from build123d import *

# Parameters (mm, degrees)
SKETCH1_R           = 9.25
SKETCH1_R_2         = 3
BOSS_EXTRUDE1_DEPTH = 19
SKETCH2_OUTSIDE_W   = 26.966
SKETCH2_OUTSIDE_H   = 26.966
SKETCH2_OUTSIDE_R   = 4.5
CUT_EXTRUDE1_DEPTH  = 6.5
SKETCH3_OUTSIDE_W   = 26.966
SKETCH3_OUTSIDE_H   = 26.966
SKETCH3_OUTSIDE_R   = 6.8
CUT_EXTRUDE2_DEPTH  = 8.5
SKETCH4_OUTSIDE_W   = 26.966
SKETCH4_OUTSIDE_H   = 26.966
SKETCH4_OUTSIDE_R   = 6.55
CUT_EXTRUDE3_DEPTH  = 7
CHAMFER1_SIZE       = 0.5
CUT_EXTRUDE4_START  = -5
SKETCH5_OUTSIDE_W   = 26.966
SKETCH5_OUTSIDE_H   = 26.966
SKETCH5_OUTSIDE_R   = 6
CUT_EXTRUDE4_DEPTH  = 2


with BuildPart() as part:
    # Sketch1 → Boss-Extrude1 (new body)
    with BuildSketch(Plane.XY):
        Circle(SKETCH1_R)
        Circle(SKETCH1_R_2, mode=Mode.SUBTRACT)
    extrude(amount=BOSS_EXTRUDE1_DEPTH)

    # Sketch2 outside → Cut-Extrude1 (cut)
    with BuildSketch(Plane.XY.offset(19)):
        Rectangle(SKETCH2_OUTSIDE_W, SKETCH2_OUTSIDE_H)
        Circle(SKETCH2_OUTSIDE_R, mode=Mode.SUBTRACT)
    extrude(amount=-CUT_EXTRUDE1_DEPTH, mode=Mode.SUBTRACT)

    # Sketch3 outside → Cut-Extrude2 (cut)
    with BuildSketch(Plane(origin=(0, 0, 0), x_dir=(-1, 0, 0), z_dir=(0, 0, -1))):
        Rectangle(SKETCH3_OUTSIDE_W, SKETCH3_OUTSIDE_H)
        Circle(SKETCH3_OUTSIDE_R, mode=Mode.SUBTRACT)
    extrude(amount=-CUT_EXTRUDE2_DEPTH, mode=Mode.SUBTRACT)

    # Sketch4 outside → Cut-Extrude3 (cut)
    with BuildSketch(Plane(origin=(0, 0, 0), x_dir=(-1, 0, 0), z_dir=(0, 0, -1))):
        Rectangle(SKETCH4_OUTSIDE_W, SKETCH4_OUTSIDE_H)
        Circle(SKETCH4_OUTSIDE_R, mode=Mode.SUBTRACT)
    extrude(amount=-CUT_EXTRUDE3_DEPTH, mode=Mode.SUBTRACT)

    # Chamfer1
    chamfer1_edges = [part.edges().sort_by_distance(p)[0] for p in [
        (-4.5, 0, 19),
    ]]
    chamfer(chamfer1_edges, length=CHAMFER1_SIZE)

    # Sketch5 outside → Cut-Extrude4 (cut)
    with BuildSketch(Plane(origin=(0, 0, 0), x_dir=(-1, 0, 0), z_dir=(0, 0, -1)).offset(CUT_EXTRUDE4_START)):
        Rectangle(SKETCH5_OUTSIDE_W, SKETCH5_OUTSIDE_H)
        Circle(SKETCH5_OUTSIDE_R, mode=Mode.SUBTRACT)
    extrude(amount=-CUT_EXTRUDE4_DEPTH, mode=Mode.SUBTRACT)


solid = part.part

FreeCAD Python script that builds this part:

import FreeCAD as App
import Part
import Sketcher

V = App.Vector
Q = App.Units.Quantity


def edges_at(feature, points):
    """Names of the edges that pass closest to the given points."""
    edges = feature.Shape.Edges
    near = lambda p: min(range(len(edges)), key=lambda i: edges[i].distToShape(Part.Vertex(*p))[0])
    return sorted({f"Edge{near(p) + 1}" for p in points})


def add_polygon(sketch, points):
    """Adds a closed chain of lines whose ends are joined by coincident constraints."""
    first, n = sketch.GeometryCount, len(points)
    for a, b in zip(points, points[1:] + points[:1]):
        sketch.addGeometry(Part.LineSegment(App.Vector(*a, 0), App.Vector(*b, 0)), False)
    for i in range(n):
        sketch.addConstraint(Sketcher.Constraint("Coincident", first + i, 2, first + (i + 1) % n, 1))

doc = App.newDocument("Part")
body = doc.addObject("PartDesign::Body", "Body")

# Sketch on XY plane
sketch1 = body.newObject("Sketcher::SketchObject", "Sketch")
sketch1.AttachmentSupport = (doc.getObject("XY_Plane"), [""])
sketch1.MapMode = "FlatFace"
sketch1.addGeometry([
    Part.Circle(V(0, 0, 0), V(0, 0, 1), 9.2),
    Part.Circle(V(0, 0, 0), V(0, 0, 1), 3),
], False)
sketch1.addConstraint([
    Sketcher.Constraint("Coincident", 0, 3, -1, 1),
    Sketcher.Constraint("Coincident", 1, 3, -1, 1),
    Sketcher.Constraint("Diameter", 1, Q("6 mm")),
    Sketcher.Constraint("Diameter", 0, Q("18.5 mm")),
])
pad1 = body.newObject("PartDesign::Pad", "Pad")
pad1.Profile = sketch1
pad1.Length = 19

# Sketch on XY plane
sketch2 = body.newObject("Sketcher::SketchObject", "Sketch001")
sketch2.AttachmentSupport = (doc.getObject("XY_Plane"), [""])
sketch2.MapMode = "FlatFace"
sketch2.AttachmentOffset = App.Placement(V(0, 0, 19), App.Rotation())
add_polygon(sketch2, [(-13.5, 13.5), (-13.5, -13.5), (13.5, -13.5), (13.5, 13.5)])  # lines 0-3
sketch2.addGeometry(Part.Circle(V(0, 0, 0), V(0, 0, 1), 4.5), False)  # 4
sketch2.addConstraint([
    Sketcher.Constraint("Vertical", 0),
    Sketcher.Constraint("Horizontal", 1),
    Sketcher.Constraint("Vertical", 2),
    Sketcher.Constraint("Horizontal", 3),
    Sketcher.Constraint("Coincident", 4, 3, -1, 1),
    Sketcher.Constraint("Symmetric", 0, 2, 2, 2, -1, 1),
    Sketcher.Constraint("Equal", 3, 0),
    Sketcher.Constraint("Diameter", 4, Q("9 mm")),
    Sketcher.Constraint("DistanceX", 1, 1, 1, 2, Q("26.966 mm")),
])
pocket1 = body.newObject("PartDesign::Pocket", "Pocket")
pocket1.Profile = sketch2
pocket1.Length = 6.5

# Sketch on XY plane
sketch3 = body.newObject("Sketcher::SketchObject", "Sketch002")
sketch3.AttachmentSupport = (doc.getObject("XY_Plane"), [""])
sketch3.MapMode = "FlatFace"
add_polygon(sketch3, [(13, 13), (13, -13), (-13, -13), (-13, 13)])  # lines 0-3
sketch3.addGeometry(Part.Circle(V(0, 0, 0), V(0, 0, 1), 7), False)  # 4
sketch3.addConstraint([
    Sketcher.Constraint("Vertical", 0),
    Sketcher.Constraint("Horizontal", 1),
    Sketcher.Constraint("Vertical", 2),
    Sketcher.Constraint("Horizontal", 3),
    Sketcher.Constraint("Coincident", 4, 3, -1, 1),
    Sketcher.Constraint("Symmetric", 0, 2, 2, 2, -1, 1),
    Sketcher.Constraint("Equal", 3, 0),
    Sketcher.Constraint("Diameter", 4, Q("13.6 mm")),
    Sketcher.Constraint("DistanceX", 1, 2, 1, 1, Q("26.966 mm")),
])
pocket2 = body.newObject("PartDesign::Pocket", "Pocket001")
pocket2.Profile = sketch3
pocket2.Length = 8.5
pocket2.Reversed = True

# Sketch on XY plane
sketch4 = body.newObject("Sketcher::SketchObject", "Sketch003")
sketch4.AttachmentSupport = (doc.getObject("XY_Plane"), [""])
sketch4.MapMode = "FlatFace"
add_polygon(sketch4, [(13, 13), (13, -13), (-13, -13), (-13, 13)])  # lines 0-3
sketch4.addGeometry(Part.Circle(V(0, 0, 0), V(0, 0, 1), 7), False)  # 4
sketch4.addConstraint([
    Sketcher.Constraint("Vertical", 0),
    Sketcher.Constraint("Horizontal", 1),
    Sketcher.Constraint("Vertical", 2),
    Sketcher.Constraint("Horizontal", 3),
    Sketcher.Constraint("Coincident", 4, 3, -1, 1),
    Sketcher.Constraint("Symmetric", 0, 2, 2, 2, -1, 1),
    Sketcher.Constraint("Equal", 3, 0),
    Sketcher.Constraint("Diameter", 4, Q("13.1 mm")),
    Sketcher.Constraint("DistanceX", 1, 2, 1, 1, Q("26.966 mm")),
])
pocket3 = body.newObject("PartDesign::Pocket", "Pocket002")
pocket3.Profile = sketch4
pocket3.Length = 7
pocket3.Reversed = True
doc.recompute()

chamfer = body.newObject("PartDesign::Chamfer", "Chamfer")
chamfer.Base = (pocket3, edges_at(pocket3, [(-4.5, 0, 19)]))
chamfer.Size = 0.5

# Sketch on XY plane
sketch5 = body.newObject("Sketcher::SketchObject", "Sketch004")
sketch5.AttachmentSupport = (doc.getObject("XY_Plane"), [""])
sketch5.MapMode = "FlatFace"
sketch5.AttachmentOffset = App.Placement(V(0, 0, 5), App.Rotation())
add_polygon(sketch5, [(13, 13), (13, -13), (-13, -13), (-13, 13)])  # lines 0-3
sketch5.addGeometry(Part.Circle(V(0, 0, 0), V(0, 0, 1), 6), False)  # 4
sketch5.addConstraint([
    Sketcher.Constraint("Vertical", 0),
    Sketcher.Constraint("Horizontal", 1),
    Sketcher.Constraint("Vertical", 2),
    Sketcher.Constraint("Horizontal", 3),
    Sketcher.Constraint("Coincident", 4, 3, -1, 1),
    Sketcher.Constraint("Symmetric", 0, 2, 2, 2, -1, 1),
    Sketcher.Constraint("Equal", 3, 0),
    Sketcher.Constraint("Diameter", 4, Q("12 mm")),
    Sketcher.Constraint("DistanceX", 1, 2, 1, 1, Q("26.966 mm")),
])
pocket4 = body.newObject("PartDesign::Pocket", "Pocket003")
pocket4.Profile = sketch5
pocket4.Length = 2
pocket4.Reversed = True

doc.recompute()
